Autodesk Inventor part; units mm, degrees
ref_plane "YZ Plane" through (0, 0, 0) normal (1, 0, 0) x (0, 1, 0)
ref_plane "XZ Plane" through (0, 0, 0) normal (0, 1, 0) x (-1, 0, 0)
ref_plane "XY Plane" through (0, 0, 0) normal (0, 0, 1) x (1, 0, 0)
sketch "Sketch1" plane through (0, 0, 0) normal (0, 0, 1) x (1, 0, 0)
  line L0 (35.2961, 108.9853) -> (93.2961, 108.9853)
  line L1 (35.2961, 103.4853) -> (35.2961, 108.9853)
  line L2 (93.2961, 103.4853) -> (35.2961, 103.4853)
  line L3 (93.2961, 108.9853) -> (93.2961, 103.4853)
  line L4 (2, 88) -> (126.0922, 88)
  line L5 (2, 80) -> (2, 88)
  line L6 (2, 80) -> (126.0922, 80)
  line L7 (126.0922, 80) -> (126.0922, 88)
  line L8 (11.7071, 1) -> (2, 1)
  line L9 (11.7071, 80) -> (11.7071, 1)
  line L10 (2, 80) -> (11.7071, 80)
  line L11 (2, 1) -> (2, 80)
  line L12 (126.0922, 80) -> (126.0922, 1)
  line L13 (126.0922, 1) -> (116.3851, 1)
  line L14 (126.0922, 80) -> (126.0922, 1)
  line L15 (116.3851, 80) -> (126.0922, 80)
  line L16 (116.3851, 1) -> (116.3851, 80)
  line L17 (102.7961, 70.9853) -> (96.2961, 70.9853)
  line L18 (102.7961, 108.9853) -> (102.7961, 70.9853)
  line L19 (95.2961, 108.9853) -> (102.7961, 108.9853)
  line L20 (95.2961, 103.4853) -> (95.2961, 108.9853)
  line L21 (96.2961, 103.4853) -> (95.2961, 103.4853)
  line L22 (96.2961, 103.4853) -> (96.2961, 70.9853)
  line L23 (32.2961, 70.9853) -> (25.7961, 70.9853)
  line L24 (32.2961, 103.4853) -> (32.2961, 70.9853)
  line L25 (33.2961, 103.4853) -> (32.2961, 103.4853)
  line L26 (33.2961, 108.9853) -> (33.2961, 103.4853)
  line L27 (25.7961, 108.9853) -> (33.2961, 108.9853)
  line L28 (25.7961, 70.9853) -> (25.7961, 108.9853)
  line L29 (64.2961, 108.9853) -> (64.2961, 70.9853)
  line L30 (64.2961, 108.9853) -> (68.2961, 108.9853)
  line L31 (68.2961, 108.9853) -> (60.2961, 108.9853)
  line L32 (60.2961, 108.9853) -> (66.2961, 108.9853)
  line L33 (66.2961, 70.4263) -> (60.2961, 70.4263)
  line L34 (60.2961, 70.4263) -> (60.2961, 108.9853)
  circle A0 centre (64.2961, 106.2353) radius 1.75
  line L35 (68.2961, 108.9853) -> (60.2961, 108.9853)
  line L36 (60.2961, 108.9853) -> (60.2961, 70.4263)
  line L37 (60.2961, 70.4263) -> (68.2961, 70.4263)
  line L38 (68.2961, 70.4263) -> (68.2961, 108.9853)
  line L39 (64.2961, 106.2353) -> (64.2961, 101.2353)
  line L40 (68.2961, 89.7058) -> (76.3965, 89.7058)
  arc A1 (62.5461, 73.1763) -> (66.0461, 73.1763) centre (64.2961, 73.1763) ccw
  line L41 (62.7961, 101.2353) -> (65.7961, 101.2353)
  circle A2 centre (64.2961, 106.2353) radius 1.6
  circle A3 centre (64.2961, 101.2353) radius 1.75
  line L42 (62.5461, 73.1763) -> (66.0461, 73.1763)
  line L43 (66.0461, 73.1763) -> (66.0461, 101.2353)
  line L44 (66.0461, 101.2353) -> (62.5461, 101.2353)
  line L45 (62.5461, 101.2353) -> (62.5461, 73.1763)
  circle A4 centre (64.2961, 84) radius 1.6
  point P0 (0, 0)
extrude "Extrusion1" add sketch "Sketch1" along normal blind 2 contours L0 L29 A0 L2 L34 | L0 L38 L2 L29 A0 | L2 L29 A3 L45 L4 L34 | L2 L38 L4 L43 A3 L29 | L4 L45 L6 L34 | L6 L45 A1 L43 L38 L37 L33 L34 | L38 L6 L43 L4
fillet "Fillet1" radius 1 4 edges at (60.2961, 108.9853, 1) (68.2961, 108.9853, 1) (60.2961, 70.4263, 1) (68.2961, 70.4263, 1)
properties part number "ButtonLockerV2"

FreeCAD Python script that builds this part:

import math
import FreeCAD as App
import Part
import Sketcher

V = App.Vector
Q = App.Units.Quantity


def edges_at(feature, points):
    """Names of the edges that pass closest to the given points."""
    edges = feature.Shape.Edges
    near = lambda p: min(range(len(edges)), key=lambda i: edges[i].distToShape(Part.Vertex(*p))[0])
    return sorted({f"Edge{near(p) + 1}" for p in points})


def add_polygon(sketch, points):
    """Adds a closed chain of lines whose ends are joined by coincident constraints."""
    first, n = sketch.GeometryCount, len(points)
    for a, b in zip(points, points[1:] + points[:1]):
        sketch.addGeometry(Part.LineSegment(App.Vector(*a, 0), App.Vector(*b, 0)), False)
    for i in range(n):
        sketch.addConstraint(Sketcher.Constraint("Coincident", first + i, 2, first + (i + 1) % n, 1))

doc = App.newDocument("Part")
params = doc.addObject("Spreadsheet::Sheet", "Params")
for row, (alias, value) in enumerate([
    ("sketch1_diameter", "3.5 mm"),
    ("sketch1_width", "8 mm"),
    ("pad1_length", "2 mm"),
    ("fillet_radius", "1 mm"),
], start=1):
    params.set(f"A{row}", alias)
    params.set(f"B{row}", "=" + value)
    params.setAlias(f"B{row}", alias)

body = doc.addObject("PartDesign::Body", "Body")

sketch1 = body.newObject("Sketcher::SketchObject", "Sketch")
sketch1.AttachmentSupport = (doc.getObject("XY_Plane"), [""])
sketch1.MapMode = "FlatFace"
add_polygon(sketch1, [(60.3, 109), (60.3, 70.4), (68.3, 70.4), (68.3, 109)])
sketch1.addGeometry(Part.Circle(V(64.3, 106.2, 0), V(0, 0, 1), 1.8), False)
sketch1.addGeometry(Part.ArcOfCircle(Part.Circle(V(64.3, 101.2, 0), V(0, 0, 1), 1.8), math.radians(0), math.radians(180)), False)
sketch1.addGeometry(Part.LineSegment(V(66, 101.2, 0), V(66, 73.2, 0)), False)
sketch1.addGeometry(Part.ArcOfCircle(Part.Circle(V(64.3, 73.2, 0), V(0, 0, 1), 1.7), math.radians(180), math.radians(360)), False)
sketch1.addGeometry(Part.LineSegment(V(62.5, 73.2, 0), V(62.5, 101.2, 0)), False)
sketch1.addConstraint([
    Sketcher.Constraint("Tangent", 5, 1, 6, 1),
    Sketcher.Constraint("Tangent", 6, 2, 7, 2),
    Sketcher.Constraint("Tangent", 7, 1, 8, 1),
    Sketcher.Constraint("Tangent", 8, 2, 5, 2),
    Sketcher.Constraint("Vertical", 0),
    Sketcher.Constraint("Horizontal", 1),
    Sketcher.Constraint("Vertical", 2),
    Sketcher.Constraint("Horizontal", 3),
    Sketcher.Constraint("Vertical", 6),
    Sketcher.Constraint("Vertical", 8),
    Sketcher.Constraint("Equal", 4, 5),
    Sketcher.Constraint("Vertical", 4, 3, 5, 3),
    Sketcher.Constraint("Diameter", 4, Q("3.5 mm")),
    Sketcher.Constraint("DistanceX", 1, 1, 1, 2, Q("8 mm")),
    Sketcher.Constraint("DistanceY", 5, 3, 4, 3, Q("5 mm")),
    Sketcher.Constraint("DistanceX", 0, 2, 7, 3, Q("4 mm")),
    Sketcher.Constraint("DistanceY", 0, 2, 0, 1, Q("38.559 mm")),
    Sketcher.Constraint("DistanceY", 6, 2, 6, 1, Q("28.059 mm")),
    Sketcher.Constraint("DistanceY", 0, 2, 7, 3, Q("2.75 mm")),
    Sketcher.Constraint("DistanceX", -1, 1, 4, 3, Q("64.296 mm")),
    Sketcher.Constraint("DistanceY", -1, 1, 4, 3, Q("106.2353 mm")),
])
sketch1.setExpression("Constraints[16]", "Params.sketch1_diameter")
sketch1.setExpression("Constraints[17]", "Params.sketch1_width")
pad1 = body.newObject("PartDesign::Pad", "Pad")
pad1.Profile = sketch1
pad1.setExpression("Length", "Params.pad1_length")
doc.recompute()

fillet = body.newObject("PartDesign::Fillet", "Fillet")
fillet.Base = (pad1, edges_at(pad1, [
    (60.296, 108.985, 1),
    (68.296, 108.985, 1),
    (60.296, 70.426, 1),
    (68.296, 70.426, 1),
]))
fillet.setExpression("Radius", "Params.fillet_radius")

doc.recompute()
